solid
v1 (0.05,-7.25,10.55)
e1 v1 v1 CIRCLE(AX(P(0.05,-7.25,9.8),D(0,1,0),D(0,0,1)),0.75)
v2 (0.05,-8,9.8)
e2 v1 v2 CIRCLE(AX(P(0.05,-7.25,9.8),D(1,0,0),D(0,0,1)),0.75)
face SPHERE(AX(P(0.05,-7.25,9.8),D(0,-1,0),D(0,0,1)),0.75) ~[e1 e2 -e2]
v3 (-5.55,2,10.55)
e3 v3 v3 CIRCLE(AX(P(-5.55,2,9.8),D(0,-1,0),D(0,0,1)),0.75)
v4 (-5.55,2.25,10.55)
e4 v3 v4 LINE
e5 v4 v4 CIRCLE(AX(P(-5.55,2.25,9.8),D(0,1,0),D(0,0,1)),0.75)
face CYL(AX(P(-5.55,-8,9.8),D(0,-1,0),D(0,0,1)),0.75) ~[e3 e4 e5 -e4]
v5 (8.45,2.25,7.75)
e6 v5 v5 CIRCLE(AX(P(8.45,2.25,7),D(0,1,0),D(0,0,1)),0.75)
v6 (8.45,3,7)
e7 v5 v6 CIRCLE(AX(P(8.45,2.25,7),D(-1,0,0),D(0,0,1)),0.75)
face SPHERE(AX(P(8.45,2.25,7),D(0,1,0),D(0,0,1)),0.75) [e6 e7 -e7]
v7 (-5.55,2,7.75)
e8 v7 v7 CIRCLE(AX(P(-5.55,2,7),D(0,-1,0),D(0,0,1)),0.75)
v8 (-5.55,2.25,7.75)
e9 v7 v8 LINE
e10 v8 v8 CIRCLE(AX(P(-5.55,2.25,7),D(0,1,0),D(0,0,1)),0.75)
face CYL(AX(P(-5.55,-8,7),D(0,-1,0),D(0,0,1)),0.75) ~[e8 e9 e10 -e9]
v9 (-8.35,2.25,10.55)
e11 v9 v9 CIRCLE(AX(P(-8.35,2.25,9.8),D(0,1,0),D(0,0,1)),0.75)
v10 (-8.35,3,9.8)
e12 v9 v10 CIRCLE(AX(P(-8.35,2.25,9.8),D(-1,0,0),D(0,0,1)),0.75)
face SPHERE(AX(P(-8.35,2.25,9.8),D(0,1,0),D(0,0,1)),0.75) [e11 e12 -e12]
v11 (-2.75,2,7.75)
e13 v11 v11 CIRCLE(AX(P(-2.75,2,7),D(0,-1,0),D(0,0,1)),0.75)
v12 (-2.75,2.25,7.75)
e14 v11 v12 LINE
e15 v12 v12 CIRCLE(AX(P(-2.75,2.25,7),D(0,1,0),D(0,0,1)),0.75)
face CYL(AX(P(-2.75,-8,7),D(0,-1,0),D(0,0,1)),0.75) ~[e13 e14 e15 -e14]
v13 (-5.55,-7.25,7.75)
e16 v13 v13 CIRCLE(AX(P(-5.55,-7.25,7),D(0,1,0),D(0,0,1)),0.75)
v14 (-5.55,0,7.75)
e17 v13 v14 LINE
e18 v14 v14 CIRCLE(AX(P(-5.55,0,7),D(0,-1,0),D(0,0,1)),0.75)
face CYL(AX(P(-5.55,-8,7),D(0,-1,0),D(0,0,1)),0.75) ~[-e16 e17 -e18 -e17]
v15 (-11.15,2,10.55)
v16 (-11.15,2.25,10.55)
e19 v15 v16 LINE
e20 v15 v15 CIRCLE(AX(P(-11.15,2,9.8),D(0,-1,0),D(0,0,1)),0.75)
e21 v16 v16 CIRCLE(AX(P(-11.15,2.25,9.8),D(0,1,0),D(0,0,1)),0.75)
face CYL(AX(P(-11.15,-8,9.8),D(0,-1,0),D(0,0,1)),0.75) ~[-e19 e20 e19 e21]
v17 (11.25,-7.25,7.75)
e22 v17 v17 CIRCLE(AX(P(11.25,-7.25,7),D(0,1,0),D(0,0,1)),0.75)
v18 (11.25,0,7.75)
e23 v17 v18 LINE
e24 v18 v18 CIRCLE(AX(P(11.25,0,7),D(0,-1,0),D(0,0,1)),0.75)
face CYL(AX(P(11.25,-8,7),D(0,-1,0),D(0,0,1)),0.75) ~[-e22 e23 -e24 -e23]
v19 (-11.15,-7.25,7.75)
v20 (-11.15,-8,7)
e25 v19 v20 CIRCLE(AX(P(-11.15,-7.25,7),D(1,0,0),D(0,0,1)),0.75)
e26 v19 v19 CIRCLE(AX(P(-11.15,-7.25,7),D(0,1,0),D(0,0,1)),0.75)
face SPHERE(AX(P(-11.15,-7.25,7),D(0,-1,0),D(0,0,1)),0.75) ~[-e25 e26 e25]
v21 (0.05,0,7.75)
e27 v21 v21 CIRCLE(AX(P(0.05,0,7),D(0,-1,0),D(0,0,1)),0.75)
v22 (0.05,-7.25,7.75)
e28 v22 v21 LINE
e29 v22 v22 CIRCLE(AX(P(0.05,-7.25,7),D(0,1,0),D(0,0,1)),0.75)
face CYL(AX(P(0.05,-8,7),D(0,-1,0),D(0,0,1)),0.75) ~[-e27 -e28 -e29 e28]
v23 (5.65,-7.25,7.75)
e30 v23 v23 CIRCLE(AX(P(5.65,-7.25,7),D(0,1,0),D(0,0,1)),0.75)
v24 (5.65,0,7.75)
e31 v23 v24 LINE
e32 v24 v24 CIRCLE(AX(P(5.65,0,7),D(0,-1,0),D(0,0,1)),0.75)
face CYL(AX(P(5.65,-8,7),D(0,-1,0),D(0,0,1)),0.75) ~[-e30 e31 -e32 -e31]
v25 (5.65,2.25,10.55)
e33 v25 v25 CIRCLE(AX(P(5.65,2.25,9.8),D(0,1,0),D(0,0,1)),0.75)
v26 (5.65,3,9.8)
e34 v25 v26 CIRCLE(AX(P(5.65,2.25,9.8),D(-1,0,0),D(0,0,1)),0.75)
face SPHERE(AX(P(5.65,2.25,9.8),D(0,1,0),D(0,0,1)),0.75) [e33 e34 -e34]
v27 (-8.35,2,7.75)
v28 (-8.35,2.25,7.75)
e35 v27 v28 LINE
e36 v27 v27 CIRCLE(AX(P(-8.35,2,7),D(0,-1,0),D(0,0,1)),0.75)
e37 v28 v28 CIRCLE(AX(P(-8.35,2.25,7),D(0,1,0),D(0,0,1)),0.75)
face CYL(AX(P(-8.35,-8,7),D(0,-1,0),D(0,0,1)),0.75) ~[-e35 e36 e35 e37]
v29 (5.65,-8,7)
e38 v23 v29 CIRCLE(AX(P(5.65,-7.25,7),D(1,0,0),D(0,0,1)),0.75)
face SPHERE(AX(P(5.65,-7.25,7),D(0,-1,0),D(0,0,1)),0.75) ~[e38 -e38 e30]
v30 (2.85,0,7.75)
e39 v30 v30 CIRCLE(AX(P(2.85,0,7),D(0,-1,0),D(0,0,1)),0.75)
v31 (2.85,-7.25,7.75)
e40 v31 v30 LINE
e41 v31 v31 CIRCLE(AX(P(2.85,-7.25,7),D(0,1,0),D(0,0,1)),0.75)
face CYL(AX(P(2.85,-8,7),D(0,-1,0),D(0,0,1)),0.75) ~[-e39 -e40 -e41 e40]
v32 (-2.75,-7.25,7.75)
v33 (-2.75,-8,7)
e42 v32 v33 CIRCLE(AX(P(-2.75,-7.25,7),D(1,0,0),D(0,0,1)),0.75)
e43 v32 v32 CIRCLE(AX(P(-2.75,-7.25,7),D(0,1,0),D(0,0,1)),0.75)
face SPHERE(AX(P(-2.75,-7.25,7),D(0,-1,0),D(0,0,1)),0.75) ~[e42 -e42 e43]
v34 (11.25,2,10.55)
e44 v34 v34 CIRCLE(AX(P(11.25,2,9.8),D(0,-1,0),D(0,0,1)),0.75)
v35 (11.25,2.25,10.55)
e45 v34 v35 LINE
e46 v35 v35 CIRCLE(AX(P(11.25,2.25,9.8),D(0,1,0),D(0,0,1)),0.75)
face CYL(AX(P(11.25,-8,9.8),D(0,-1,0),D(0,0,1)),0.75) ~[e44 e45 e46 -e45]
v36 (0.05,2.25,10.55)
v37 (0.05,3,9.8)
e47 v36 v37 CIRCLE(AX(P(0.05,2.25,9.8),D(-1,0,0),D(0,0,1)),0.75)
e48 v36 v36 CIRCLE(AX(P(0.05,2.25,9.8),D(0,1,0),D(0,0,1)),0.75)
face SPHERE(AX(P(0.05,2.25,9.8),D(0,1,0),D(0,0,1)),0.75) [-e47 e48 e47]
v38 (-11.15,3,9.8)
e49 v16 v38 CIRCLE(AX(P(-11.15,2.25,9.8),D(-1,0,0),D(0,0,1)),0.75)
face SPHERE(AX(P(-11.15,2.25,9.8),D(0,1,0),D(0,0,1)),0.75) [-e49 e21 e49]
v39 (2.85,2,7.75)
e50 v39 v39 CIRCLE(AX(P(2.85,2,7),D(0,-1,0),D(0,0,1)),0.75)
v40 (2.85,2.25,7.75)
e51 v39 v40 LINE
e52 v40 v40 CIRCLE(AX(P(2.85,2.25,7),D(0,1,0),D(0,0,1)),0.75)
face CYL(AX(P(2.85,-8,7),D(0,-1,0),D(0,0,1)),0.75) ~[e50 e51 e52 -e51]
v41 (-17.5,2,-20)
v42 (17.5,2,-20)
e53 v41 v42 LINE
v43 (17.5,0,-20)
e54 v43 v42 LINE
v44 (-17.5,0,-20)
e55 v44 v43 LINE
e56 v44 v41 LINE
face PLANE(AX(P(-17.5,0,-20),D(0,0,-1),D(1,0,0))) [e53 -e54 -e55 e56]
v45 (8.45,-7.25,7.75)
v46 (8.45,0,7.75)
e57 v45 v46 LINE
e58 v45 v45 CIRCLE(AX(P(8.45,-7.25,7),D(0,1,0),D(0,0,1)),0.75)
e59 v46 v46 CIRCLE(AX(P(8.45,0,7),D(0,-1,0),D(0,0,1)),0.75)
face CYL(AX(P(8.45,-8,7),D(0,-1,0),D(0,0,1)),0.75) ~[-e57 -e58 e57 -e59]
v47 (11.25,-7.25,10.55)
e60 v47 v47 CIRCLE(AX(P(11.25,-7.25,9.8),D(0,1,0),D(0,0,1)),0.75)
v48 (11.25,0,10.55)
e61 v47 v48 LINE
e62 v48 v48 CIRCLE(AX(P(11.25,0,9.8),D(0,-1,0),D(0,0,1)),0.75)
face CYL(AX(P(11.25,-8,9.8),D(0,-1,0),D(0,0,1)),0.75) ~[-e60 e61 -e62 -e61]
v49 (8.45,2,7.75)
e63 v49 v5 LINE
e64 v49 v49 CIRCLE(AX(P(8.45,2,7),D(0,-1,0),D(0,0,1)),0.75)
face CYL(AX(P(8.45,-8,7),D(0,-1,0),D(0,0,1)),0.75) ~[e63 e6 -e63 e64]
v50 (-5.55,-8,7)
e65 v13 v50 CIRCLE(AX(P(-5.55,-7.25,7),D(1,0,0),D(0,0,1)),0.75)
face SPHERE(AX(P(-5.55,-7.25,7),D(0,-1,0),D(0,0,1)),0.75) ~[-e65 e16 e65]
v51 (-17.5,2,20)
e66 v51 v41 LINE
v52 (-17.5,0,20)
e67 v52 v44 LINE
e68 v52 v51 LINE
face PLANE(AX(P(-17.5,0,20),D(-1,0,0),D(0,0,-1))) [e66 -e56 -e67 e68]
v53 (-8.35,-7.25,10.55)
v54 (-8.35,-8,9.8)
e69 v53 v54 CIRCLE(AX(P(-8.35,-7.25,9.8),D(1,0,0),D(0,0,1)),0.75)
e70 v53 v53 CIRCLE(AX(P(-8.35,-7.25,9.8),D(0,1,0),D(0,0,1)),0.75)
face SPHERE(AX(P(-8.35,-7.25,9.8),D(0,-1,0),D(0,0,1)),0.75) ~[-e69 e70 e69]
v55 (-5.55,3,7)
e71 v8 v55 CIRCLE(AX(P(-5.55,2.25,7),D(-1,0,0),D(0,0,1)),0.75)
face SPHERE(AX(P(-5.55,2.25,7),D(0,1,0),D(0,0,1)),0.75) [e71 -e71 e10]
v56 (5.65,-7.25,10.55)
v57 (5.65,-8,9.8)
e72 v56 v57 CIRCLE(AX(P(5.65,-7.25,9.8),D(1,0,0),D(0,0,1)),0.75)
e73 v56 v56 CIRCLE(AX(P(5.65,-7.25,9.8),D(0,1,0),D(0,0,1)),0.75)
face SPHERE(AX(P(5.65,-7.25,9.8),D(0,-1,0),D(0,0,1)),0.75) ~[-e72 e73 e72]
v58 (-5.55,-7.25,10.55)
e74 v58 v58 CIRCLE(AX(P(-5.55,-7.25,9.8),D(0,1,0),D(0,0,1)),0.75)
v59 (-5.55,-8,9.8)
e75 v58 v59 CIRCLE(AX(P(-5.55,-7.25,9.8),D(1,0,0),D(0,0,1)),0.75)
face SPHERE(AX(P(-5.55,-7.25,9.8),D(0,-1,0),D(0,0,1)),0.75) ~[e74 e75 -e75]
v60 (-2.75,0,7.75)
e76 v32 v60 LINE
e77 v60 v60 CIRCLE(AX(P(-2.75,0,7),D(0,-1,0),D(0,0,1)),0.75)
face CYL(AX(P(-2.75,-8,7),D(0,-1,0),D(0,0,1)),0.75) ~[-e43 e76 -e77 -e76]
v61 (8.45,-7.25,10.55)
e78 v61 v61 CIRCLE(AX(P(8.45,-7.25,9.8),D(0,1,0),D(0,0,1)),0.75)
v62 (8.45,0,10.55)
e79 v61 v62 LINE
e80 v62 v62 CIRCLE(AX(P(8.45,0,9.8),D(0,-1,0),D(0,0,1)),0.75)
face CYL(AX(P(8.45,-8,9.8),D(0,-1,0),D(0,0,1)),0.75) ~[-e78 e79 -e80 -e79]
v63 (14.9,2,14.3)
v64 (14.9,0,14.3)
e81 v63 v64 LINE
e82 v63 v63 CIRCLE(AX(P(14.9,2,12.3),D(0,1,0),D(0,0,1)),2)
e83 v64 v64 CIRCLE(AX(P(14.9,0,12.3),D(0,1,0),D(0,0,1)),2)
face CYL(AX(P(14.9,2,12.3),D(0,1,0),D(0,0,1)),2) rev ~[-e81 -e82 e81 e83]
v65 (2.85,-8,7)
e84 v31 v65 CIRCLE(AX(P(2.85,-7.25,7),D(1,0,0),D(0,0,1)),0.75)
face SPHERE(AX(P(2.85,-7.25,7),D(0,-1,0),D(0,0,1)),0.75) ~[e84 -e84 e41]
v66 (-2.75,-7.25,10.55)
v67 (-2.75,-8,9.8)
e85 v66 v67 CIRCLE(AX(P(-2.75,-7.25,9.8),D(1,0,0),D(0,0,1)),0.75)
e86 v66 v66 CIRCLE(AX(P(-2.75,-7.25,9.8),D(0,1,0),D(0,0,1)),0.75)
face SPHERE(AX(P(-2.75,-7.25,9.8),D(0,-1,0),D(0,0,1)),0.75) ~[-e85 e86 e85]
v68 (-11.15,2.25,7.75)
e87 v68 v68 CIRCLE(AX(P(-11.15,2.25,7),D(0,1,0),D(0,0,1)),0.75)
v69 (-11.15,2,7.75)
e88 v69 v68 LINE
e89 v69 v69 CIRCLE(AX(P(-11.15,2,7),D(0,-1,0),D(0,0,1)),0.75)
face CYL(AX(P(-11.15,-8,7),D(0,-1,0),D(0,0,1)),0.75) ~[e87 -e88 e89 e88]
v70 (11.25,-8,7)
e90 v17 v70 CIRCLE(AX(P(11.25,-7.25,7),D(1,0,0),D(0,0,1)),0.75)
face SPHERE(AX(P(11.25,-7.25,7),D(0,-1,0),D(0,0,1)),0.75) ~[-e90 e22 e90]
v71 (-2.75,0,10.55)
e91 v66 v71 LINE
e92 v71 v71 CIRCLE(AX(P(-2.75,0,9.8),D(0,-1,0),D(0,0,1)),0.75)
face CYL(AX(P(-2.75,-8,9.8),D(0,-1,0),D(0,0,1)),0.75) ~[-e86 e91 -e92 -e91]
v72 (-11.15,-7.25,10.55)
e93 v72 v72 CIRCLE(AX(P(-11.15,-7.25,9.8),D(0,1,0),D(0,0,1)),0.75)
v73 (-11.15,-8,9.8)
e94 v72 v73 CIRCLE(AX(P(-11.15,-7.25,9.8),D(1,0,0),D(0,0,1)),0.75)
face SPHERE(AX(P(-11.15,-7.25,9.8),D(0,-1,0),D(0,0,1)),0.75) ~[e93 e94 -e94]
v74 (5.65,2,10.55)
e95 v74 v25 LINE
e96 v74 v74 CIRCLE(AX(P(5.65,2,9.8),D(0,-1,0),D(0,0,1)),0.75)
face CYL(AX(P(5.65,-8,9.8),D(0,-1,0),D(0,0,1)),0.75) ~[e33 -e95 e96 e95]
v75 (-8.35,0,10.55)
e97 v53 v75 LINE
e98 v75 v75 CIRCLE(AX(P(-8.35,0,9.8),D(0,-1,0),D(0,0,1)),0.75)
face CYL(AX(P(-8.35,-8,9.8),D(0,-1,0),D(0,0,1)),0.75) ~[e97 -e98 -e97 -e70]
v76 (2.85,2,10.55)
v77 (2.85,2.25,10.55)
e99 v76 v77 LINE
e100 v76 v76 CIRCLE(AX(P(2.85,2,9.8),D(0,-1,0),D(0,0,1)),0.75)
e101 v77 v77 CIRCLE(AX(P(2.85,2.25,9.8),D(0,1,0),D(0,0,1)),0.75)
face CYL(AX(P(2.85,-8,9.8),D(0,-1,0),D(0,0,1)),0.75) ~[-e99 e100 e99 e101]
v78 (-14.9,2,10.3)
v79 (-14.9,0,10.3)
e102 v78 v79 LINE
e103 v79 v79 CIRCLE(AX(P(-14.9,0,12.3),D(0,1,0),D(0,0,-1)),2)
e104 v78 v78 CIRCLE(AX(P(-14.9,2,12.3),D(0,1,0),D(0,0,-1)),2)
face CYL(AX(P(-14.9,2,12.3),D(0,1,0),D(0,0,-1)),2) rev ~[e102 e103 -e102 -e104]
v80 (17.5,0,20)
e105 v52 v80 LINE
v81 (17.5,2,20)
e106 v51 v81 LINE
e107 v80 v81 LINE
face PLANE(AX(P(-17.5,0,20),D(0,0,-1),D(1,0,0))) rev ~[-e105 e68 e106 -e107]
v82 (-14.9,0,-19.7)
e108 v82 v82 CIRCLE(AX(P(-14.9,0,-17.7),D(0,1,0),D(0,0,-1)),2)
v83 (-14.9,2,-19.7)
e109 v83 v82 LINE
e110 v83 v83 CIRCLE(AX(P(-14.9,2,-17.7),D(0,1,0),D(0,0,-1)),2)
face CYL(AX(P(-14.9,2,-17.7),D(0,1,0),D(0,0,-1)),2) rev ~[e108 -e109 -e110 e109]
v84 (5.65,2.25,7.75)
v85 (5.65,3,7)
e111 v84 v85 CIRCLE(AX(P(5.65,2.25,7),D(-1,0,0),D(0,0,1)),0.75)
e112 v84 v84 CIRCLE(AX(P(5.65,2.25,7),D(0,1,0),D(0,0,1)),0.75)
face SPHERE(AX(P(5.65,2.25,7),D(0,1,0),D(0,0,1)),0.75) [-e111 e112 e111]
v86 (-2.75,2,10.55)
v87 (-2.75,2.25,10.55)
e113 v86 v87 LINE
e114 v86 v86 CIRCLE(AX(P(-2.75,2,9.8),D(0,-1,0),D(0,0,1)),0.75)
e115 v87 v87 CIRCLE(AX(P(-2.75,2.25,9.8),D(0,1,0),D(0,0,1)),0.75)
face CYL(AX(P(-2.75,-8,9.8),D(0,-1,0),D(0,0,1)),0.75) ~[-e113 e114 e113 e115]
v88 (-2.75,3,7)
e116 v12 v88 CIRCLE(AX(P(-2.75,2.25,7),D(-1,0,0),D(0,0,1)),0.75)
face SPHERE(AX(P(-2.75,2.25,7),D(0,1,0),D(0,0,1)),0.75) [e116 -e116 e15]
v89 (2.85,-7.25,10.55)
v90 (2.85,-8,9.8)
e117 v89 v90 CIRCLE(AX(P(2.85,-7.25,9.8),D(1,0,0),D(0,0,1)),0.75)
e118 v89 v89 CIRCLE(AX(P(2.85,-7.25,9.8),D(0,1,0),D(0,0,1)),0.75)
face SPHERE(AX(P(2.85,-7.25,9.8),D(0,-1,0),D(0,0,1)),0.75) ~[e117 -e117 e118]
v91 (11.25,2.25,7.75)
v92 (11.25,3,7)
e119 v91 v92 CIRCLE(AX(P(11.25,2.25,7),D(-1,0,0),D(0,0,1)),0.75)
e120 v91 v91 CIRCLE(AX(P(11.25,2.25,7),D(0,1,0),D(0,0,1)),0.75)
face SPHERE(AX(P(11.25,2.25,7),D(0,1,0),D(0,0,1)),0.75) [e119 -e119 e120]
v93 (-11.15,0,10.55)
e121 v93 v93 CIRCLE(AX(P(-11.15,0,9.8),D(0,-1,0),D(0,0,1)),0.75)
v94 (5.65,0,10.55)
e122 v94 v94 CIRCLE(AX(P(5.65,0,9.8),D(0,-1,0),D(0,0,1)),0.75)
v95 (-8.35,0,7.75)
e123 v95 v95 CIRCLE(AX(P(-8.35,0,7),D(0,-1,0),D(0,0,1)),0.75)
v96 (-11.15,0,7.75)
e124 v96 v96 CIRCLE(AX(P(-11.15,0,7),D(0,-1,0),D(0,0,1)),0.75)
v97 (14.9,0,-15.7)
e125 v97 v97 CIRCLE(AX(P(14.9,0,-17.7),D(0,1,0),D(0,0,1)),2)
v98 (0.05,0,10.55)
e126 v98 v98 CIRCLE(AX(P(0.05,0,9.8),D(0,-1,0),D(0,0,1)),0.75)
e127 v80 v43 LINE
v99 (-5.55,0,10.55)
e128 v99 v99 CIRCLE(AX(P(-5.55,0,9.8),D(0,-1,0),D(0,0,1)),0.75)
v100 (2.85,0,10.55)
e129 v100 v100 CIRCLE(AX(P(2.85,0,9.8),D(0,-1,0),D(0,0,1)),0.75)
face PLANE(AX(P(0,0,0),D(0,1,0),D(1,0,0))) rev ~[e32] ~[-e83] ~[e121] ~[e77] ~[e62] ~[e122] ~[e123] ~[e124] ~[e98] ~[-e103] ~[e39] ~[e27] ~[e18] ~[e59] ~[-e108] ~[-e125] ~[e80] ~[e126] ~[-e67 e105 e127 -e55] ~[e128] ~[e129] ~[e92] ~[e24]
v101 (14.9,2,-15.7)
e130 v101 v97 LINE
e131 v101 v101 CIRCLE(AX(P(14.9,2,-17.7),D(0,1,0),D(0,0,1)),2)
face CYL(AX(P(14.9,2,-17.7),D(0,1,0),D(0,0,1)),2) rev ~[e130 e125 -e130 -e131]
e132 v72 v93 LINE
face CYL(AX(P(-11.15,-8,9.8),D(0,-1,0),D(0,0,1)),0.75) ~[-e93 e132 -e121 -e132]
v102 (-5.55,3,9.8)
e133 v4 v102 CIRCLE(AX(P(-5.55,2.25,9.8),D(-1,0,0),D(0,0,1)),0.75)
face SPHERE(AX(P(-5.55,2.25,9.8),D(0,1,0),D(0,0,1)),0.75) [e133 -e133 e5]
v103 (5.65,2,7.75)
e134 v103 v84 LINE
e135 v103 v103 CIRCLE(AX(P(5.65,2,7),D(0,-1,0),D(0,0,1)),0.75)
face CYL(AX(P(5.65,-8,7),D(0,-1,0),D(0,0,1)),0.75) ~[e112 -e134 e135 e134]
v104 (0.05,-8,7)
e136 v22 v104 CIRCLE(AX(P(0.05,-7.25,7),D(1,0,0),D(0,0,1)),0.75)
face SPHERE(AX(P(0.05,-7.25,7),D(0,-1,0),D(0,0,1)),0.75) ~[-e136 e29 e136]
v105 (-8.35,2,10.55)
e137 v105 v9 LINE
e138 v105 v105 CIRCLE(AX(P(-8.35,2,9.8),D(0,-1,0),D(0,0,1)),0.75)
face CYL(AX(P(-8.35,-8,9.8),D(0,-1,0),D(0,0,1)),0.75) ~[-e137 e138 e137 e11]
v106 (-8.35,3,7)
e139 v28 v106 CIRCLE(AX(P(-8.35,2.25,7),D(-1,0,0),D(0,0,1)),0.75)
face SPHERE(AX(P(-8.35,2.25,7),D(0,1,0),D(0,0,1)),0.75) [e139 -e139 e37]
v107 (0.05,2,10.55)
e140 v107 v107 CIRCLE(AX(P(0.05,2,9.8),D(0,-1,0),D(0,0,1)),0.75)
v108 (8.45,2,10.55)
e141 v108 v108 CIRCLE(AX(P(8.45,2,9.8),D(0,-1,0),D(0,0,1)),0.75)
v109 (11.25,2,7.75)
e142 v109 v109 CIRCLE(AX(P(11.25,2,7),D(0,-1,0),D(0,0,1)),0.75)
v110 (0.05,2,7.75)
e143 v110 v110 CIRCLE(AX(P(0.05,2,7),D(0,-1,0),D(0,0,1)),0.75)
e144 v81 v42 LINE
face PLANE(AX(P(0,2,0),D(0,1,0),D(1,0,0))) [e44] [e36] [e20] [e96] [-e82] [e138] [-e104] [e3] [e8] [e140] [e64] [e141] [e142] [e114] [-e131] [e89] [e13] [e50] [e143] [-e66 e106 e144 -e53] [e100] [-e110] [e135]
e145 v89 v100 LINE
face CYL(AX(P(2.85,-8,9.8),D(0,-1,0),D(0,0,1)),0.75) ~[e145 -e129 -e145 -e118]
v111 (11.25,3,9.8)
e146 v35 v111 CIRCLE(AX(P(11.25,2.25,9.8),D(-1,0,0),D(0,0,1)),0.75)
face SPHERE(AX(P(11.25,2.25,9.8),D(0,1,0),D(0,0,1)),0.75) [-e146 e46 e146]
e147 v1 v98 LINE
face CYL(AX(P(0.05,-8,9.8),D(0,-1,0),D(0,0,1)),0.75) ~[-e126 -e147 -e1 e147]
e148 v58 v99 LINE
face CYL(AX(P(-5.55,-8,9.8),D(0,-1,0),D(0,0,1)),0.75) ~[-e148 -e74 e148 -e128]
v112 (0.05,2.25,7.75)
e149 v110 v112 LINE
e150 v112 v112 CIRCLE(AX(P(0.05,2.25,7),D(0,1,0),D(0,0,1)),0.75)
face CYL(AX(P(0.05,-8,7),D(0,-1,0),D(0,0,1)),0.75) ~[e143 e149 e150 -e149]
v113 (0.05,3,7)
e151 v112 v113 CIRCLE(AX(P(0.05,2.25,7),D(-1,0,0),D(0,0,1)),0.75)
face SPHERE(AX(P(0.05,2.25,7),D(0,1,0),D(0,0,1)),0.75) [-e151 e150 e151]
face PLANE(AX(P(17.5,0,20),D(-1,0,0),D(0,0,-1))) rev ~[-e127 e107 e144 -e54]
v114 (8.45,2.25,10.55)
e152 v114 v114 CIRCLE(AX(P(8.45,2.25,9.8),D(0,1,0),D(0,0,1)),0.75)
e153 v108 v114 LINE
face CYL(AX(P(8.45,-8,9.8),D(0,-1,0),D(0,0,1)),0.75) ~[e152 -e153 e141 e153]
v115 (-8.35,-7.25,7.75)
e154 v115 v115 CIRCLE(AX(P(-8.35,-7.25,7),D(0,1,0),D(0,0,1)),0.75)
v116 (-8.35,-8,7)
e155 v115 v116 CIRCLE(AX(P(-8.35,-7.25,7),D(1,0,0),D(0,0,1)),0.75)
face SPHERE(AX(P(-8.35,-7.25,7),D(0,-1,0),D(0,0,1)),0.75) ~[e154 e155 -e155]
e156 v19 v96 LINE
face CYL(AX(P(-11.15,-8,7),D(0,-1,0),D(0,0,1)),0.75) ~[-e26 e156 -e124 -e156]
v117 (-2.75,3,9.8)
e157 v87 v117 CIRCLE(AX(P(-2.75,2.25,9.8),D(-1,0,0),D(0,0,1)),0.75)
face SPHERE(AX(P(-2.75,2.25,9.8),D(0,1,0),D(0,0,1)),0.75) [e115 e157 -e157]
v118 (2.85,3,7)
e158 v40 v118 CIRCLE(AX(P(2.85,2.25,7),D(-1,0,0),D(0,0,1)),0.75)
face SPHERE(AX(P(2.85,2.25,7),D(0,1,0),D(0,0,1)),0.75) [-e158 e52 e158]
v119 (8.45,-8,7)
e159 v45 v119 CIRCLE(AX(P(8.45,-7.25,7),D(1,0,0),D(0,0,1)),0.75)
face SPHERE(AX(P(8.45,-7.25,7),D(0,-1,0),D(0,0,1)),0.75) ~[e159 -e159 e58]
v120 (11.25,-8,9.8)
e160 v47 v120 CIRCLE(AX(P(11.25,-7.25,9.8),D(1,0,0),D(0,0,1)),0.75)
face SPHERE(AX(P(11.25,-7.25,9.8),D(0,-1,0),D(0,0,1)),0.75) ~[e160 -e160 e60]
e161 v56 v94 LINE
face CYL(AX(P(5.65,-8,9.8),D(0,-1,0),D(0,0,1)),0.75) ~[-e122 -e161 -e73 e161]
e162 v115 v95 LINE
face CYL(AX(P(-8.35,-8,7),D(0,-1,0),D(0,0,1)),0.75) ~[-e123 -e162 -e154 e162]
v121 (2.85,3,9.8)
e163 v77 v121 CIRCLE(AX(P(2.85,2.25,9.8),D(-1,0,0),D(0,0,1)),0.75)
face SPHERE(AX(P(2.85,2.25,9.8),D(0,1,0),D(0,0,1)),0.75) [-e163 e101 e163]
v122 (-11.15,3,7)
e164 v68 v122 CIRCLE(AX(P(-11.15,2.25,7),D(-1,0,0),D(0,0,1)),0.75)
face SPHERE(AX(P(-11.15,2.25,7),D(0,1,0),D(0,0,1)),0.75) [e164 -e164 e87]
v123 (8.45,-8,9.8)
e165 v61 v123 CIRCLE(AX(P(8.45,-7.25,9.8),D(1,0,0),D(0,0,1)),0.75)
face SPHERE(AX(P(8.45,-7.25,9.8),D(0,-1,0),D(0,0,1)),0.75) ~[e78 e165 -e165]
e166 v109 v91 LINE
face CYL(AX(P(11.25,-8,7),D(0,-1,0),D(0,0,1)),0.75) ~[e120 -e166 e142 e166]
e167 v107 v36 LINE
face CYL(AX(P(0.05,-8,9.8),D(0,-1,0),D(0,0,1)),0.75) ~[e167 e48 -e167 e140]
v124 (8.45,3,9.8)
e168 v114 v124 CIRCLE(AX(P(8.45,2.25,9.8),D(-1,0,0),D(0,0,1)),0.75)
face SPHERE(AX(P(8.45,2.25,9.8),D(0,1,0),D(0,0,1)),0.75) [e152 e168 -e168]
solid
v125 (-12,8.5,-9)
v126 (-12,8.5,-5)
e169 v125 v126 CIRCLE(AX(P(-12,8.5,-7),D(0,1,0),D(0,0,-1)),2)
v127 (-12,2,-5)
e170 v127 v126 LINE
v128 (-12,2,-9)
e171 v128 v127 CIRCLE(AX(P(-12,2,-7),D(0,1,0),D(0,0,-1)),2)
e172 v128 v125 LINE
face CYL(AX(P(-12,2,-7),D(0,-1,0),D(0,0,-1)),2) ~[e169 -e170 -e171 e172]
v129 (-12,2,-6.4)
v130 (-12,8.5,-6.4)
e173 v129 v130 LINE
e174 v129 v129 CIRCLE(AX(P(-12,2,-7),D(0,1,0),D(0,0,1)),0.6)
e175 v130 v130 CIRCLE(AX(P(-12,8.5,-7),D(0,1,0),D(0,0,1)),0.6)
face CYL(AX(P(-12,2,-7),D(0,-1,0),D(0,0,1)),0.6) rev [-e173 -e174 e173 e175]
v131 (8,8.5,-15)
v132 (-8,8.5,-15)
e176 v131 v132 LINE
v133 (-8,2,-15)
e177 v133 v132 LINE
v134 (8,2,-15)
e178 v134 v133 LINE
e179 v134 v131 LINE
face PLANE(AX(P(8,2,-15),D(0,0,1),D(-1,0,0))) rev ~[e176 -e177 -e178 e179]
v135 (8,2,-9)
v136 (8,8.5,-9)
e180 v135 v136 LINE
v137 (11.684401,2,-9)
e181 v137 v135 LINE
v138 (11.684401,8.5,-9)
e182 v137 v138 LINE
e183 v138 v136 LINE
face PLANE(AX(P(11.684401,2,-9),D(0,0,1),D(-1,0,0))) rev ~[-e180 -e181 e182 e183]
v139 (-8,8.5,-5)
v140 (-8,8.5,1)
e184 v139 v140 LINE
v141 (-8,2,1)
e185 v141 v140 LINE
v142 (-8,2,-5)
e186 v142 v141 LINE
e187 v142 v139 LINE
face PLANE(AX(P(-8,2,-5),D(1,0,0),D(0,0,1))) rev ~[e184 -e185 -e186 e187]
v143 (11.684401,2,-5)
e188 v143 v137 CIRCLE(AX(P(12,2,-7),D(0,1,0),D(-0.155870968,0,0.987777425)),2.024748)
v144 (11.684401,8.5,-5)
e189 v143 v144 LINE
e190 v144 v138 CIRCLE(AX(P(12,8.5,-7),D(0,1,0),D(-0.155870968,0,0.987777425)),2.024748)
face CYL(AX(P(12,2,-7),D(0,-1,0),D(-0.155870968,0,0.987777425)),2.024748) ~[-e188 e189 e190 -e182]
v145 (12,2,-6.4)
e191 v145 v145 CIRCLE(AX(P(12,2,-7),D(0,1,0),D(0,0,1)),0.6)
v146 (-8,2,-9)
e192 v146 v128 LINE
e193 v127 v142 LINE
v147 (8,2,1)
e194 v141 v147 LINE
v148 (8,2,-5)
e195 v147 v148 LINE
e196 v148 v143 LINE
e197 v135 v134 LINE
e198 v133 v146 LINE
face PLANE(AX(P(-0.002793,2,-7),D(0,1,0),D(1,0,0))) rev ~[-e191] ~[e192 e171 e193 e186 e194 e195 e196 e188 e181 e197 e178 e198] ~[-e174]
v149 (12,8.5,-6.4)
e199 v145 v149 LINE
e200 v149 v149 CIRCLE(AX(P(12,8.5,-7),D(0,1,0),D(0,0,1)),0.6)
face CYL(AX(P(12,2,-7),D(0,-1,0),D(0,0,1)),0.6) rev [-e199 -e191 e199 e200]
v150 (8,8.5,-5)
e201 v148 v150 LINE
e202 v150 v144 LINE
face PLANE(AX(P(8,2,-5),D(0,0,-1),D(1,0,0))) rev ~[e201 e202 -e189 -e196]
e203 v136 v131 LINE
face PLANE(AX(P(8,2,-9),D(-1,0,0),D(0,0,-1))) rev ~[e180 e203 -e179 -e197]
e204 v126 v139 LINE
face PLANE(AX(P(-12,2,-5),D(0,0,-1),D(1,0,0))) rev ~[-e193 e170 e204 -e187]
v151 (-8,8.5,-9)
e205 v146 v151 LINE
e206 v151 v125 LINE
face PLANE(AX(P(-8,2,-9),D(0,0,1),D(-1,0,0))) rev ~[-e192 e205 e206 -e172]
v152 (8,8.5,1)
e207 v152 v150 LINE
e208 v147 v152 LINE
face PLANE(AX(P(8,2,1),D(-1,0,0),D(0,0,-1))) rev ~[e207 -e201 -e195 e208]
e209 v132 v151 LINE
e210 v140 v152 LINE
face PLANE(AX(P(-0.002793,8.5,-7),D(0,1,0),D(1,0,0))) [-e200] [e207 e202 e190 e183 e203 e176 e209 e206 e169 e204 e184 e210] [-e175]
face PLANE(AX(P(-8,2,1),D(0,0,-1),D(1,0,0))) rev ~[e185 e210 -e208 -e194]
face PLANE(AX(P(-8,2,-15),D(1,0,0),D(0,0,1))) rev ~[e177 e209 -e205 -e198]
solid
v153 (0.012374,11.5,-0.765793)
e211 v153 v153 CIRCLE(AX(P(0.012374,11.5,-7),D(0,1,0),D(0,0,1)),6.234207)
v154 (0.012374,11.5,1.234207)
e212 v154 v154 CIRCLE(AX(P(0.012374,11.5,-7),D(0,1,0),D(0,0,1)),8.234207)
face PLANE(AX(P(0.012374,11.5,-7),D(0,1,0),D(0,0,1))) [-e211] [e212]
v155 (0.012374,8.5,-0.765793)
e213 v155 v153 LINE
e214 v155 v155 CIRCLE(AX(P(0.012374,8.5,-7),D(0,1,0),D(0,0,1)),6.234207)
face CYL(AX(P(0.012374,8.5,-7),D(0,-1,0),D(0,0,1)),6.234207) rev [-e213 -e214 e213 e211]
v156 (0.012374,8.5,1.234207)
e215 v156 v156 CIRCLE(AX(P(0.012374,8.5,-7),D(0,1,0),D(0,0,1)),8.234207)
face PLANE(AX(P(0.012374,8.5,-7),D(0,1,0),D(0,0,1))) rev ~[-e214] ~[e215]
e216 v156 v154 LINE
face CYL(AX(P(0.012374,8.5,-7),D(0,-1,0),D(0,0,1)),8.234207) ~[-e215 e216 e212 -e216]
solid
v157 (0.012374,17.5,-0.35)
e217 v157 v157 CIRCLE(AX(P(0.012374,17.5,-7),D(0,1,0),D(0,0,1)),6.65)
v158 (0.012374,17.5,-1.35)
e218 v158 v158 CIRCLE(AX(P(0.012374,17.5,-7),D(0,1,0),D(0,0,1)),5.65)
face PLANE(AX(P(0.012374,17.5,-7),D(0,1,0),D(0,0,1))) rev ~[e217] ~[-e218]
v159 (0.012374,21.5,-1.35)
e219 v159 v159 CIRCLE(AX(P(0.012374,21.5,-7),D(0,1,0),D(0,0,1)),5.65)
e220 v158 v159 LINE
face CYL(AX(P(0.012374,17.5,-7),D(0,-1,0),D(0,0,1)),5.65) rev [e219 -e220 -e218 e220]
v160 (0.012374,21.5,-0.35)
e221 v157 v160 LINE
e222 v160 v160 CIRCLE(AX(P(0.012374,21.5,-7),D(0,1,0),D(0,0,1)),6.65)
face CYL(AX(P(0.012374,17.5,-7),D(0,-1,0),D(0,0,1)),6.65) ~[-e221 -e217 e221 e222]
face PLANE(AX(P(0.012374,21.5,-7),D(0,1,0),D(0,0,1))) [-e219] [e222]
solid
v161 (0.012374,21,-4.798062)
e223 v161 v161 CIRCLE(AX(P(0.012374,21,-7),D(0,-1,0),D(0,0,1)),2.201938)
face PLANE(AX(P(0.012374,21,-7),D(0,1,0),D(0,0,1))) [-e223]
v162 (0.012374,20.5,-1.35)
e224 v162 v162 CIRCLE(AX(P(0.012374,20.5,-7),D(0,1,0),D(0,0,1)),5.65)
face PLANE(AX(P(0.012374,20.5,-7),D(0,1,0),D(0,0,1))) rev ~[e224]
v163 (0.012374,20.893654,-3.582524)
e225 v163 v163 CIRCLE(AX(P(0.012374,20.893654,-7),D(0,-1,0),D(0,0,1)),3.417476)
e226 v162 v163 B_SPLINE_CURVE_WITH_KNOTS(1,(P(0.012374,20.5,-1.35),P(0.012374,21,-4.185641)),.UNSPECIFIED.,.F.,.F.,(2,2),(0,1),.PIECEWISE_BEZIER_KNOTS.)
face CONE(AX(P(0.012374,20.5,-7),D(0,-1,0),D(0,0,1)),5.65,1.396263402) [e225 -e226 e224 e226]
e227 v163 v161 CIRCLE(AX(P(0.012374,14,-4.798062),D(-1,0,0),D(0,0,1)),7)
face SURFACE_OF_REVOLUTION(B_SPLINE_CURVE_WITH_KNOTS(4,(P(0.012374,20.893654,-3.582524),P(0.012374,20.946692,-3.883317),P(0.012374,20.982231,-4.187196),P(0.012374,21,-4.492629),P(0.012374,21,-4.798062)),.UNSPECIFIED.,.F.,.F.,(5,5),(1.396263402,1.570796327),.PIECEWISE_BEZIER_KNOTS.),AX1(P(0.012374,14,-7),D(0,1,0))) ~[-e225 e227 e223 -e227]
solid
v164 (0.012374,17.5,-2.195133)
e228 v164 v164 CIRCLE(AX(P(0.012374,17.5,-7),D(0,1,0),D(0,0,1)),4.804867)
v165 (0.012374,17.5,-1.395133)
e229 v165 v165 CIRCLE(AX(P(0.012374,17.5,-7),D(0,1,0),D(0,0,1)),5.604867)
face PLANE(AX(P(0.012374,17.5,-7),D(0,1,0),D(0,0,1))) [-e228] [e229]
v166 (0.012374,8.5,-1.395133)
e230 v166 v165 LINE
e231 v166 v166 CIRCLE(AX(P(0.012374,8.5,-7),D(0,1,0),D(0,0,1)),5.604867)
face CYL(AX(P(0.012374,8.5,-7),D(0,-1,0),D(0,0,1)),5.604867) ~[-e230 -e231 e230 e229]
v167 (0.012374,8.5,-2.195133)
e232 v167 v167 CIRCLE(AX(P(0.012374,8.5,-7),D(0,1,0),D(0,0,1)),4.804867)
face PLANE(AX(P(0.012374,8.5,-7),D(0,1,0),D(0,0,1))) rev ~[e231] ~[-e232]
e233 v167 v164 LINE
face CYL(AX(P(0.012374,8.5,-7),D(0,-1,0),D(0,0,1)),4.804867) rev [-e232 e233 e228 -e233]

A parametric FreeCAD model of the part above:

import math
import FreeCAD as App
import Part
import Sketcher


def edges_at(feature, points):
    """Names of the edges that pass closest to the given points."""
    edges = feature.Shape.Edges
    near = lambda p: min(range(len(edges)), key=lambda i: edges[i].distToShape(Part.Vertex(*p))[0])
    return sorted({f"Edge{near(p) + 1}" for p in points})


def add_polygon(sketch, points):
    """Adds a closed chain of lines whose ends are joined by coincident constraints."""
    first, n = sketch.GeometryCount, len(points)
    for a, b in zip(points, points[1:] + points[:1]):
        sketch.addGeometry(Part.LineSegment(App.Vector(*a, 0), App.Vector(*b, 0)), False)
    for i in range(n):
        sketch.addConstraint(Sketcher.Constraint("Coincident", first + i, 2, first + (i + 1) % n, 1))

doc = App.newDocument("Part")
params = doc.addObject("Spreadsheet::Sheet", "Params")
for row, (alias, value) in enumerate([
    ("sketch1_width", "35 mm"),
    ("sketch1_height", "40 mm"),
    ("pad1_length", "2 mm"),
    ("sketch2_diameter", "4 mm"),
    ("pocket1_length", "2 mm"),
    ("sketch3_diameter", "1.5 mm"),
    ("pad2_length", "1 mm"),
    ("pad2_length2", "10 mm"),
    ("fillet_radius", "0.75 mm"),
    ("sketch4_radius", "2 mm"),
    ("sketch4_diameter", "1.2 mm"),
    ("sketch4_width", "4 mm"),
    ("sketch4_width2", "16 mm"),
    ("sketch4_height", "6 mm"),
    ("pad3_length", "6.5 mm"),
    ("pad4_length", "3 mm"),
    ("pad5_length", "6 mm"),
    ("pad5_length2", "3 mm"),
    ("sketch7_diameter", "13.3 mm"),
    ("sketch7_diameter2", "11.3 mm"),
    ("pad6_length", "4 mm"),
    ("sketch8_diameter", "11.3 mm"),
    ("pad7_length", "0.5 mm"),
    ("pad7_taper", "-80 deg"),
    ("fillet2_radius", "7 mm"),
], start=1):
    params.set(f"A{row}", alias)
    params.set(f"B{row}", "=" + value)
    params.setAlias(f"B{row}", alias)

body = doc.addObject("PartDesign::Body", "Body")

sketch1 = body.newObject("Sketcher::SketchObject", "Sketch")
sketch1.AttachmentSupport = (doc.getObject("XZ_Plane"), [""])
sketch1.MapMode = "FlatFace"
add_polygon(sketch1, [(-17.5, -20), (-17.5, 20), (17.5, 20), (17.5, -20)])
sketch1.addConstraint(Sketcher.Constraint("Vertical", 0))
sketch1.addConstraint(Sketcher.Constraint("Horizontal", 1))
sketch1.addConstraint(Sketcher.Constraint("Vertical", 2))
sketch1.addConstraint(Sketcher.Constraint("Horizontal", 3))
sketch1.addConstraint(Sketcher.Constraint("Symmetric", 0, 2, 2, 2, -1, 1))
sketch1.addConstraint(Sketcher.Constraint("DistanceX", 1, 1, 1, 2, 35.0))
sketch1.addConstraint(Sketcher.Constraint("DistanceY", 0, 1, 0, 2, 40.0))
sketch1.setExpression("Constraints[9]", "Params.sketch1_width")
sketch1.setExpression("Constraints[10]", "Params.sketch1_height")
pad1 = body.newObject("PartDesign::Pad", "Pad")
pad1.Profile = sketch1
pad1.setExpression("Length", "Params.pad1_length")
pad1.Reversed = True

sketch2 = body.newObject("Sketcher::SketchObject", "Sketch001")
sketch2.AttachmentSupport = (doc.getObject("XZ_Plane"), [""])
sketch2.MapMode = "FlatFace"
sketch2.AttachmentOffset = App.Placement(App.Vector(0, 0, -2), App.Rotation())
sketch2.addGeometry(Part.Circle(App.Vector(14.9, -17.7, 0), App.Vector(0, 0, 1), 2), False)
sketch2.addGeometry(Part.Circle(App.Vector(14.9, 12.3, 0), App.Vector(0, 0, 1), 2), False)
sketch2.addGeometry(Part.Circle(App.Vector(-14.9, 12.3, 0), App.Vector(0, 0, 1), 2), False)
sketch2.addGeometry(Part.Circle(App.Vector(-14.9, -17.7, 0), App.Vector(0, 0, 1), 2), False)
sketch2.addConstraint(Sketcher.Constraint("Equal", 0, 1))
sketch2.addConstraint(Sketcher.Constraint("Equal", 1, 2))
sketch2.addConstraint(Sketcher.Constraint("Equal", 2, 3))
sketch2.addConstraint(Sketcher.Constraint("Symmetric", 1, 3, 2, 3, -2))
sketch2.addConstraint(Sketcher.Constraint("Symmetric", 0, 3, 3, 3, -2))
sketch2.addConstraint(Sketcher.Constraint("Vertical", 0, 3, 1, 3))
sketch2.addConstraint(Sketcher.Constraint("Diameter", 0, 4.0))
sketch2.addConstraint(Sketcher.Constraint("DistanceY", 0, 3, 1, 3, 30.0))
sketch2.addConstraint(Sketcher.Constraint("DistanceX", -1, 1, 0, 3, 14.9))
sketch2.addConstraint(Sketcher.Constraint("DistanceY", 0, 3, -1, 1, 17.7))
sketch2.setExpression("Constraints[6]", "Params.sketch2_diameter")
pocket1 = body.newObject("PartDesign::Pocket", "Pocket")
pocket1.Profile = sketch2
pocket1.setExpression("Length", "Params.pocket1_length")
pocket1.Reversed = True

sketch3 = body.newObject("Sketcher::SketchObject", "Sketch002")
sketch3.AttachmentSupport = (doc.getObject("XZ_Plane"), [""])
sketch3.MapMode = "FlatFace"
sketch3.AttachmentOffset = App.Placement(App.Vector(0, 0, -2), App.Rotation())
sketch3.addGeometry(Part.Circle(App.Vector(-11.15, 7, 0), App.Vector(0, 0, 1), 0.75), False)
sketch3.addGeometry(Part.Circle(App.Vector(-8.35, 7, 0), App.Vector(0, 0, 1), 0.75), False)
sketch3.addGeometry(Part.Circle(App.Vector(-5.55, 7, 0), App.Vector(0, 0, 1), 0.75), False)
sketch3.addGeometry(Part.Circle(App.Vector(-2.75, 7, 0), App.Vector(0, 0, 1), 0.75), False)
sketch3.addGeometry(Part.Circle(App.Vector(0.05, 7, 0), App.Vector(0, 0, 1), 0.75), False)
sketch3.addGeometry(Part.Circle(App.Vector(2.85, 7, 0), App.Vector(0, 0, 1), 0.75), False)
sketch3.addGeometry(Part.Circle(App.Vector(5.65, 7, 0), App.Vector(0, 0, 1), 0.75), False)
sketch3.addGeometry(Part.Circle(App.Vector(8.45, 7, 0), App.Vector(0, 0, 1), 0.75), False)
sketch3.addGeometry(Part.Circle(App.Vector(11.25, 7, 0), App.Vector(0, 0, 1), 0.75), False)
sketch3.addGeometry(Part.Circle(App.Vector(-8.35, 9.8, 0), App.Vector(0, 0, 1), 0.75), False)
sketch3.addGeometry(Part.Circle(App.Vector(-5.55, 9.8, 0), App.Vector(0, 0, 1), 0.75), False)
sketch3.addGeometry(Part.Circle(App.Vector(-2.75, 9.8, 0), App.Vector(0, 0, 1), 0.75), False)
sketch3.addGeometry(Part.Circle(App.Vector(0.05, 9.8, 0), App.Vector(0, 0, 1), 0.75), False)
sketch3.addGeometry(Part.Circle(App.Vector(2.85, 9.8, 0), App.Vector(0, 0, 1), 0.75), False)
sketch3.addGeometry(Part.Circle(App.Vector(5.65, 9.8, 0), App.Vector(0, 0, 1), 0.75), False)
sketch3.addGeometry(Part.Circle(App.Vector(8.45, 9.8, 0), App.Vector(0, 0, 1), 0.75), False)
sketch3.addGeometry(Part.Circle(App.Vector(11.25, 9.8, 0), App.Vector(0, 0, 1), 0.75), False)
sketch3.addGeometry(Part.Circle(App.Vector(-11.15, 9.8, 0), App.Vector(0, 0, 1), 0.75), False)
sketch3.addConstraint(Sketcher.Constraint("Equal", 0, 1))
sketch3.addConstraint(Sketcher.Constraint("Equal", 1, 2))
sketch3.addConstraint(Sketcher.Constraint("Equal", 2, 3))
sketch3.addConstraint(Sketcher.Constraint("Equal", 3, 4))
sketch3.addConstraint(Sketcher.Constraint("Equal", 4, 5))
sketch3.addConstraint(Sketcher.Constraint("Equal", 5, 6))
sketch3.addConstraint(Sketcher.Constraint("Equal", 6, 7))
sketch3.addConstraint(Sketcher.Constraint("Equal", 7, 8))
sketch3.addConstraint(Sketcher.Constraint("Equal", 8, 9))
sketch3.addConstraint(Sketcher.Constraint("Equal", 9, 10))
sketch3.addConstraint(Sketcher.Constraint("Equal", 10, 11))
sketch3.addConstraint(Sketcher.Constraint("Equal", 11, 12))
sketch3.addConstraint(Sketcher.Constraint("Equal", 12, 13))
sketch3.addConstraint(Sketcher.Constraint("Equal", 13, 14))
sketch3.addConstraint(Sketcher.Constraint("Equal", 14, 15))
sketch3.addConstraint(Sketcher.Constraint("Equal", 15, 16))
sketch3.addConstraint(Sketcher.Constraint("Equal", 16, 17))
sketch3.addConstraint(Sketcher.Constraint("Horizontal", 0, 3, 1, 3))
sketch3.addConstraint(Sketcher.Constraint("Horizontal", 1, 3, 2, 3))
sketch3.addConstraint(Sketcher.Constraint("Horizontal", 2, 3, 3, 3))
sketch3.addConstraint(Sketcher.Constraint("Horizontal", 3, 3, 4, 3))
sketch3.addConstraint(Sketcher.Constraint("Horizontal", 4, 3, 5, 3))
sketch3.addConstraint(Sketcher.Constraint("Horizontal", 5, 3, 6, 3))
sketch3.addConstraint(Sketcher.Constraint("Horizontal", 6, 3, 7, 3))
sketch3.addConstraint(Sketcher.Constraint("Horizontal", 7, 3, 8, 3))
sketch3.addConstraint(Sketcher.Constraint("Horizontal", 9, 3, 10, 3))
sketch3.addConstraint(Sketcher.Constraint("Horizontal", 10, 3, 11, 3))
sketch3.addConstraint(Sketcher.Constraint("Horizontal", 11, 3, 12, 3))
sketch3.addConstraint(Sketcher.Constraint("Horizontal", 12, 3, 13, 3))
sketch3.addConstraint(Sketcher.Constraint("Horizontal", 13, 3, 14, 3))
sketch3.addConstraint(Sketcher.Constraint("Horizontal", 14, 3, 15, 3))
sketch3.addConstraint(Sketcher.Constraint("Horizontal", 15, 3, 16, 3))
sketch3.addConstraint(Sketcher.Constraint("Horizontal", 16, 3, 17, 3))
sketch3.addConstraint(Sketcher.Constraint("Vertical", 1, 3, 9, 3))
sketch3.addConstraint(Sketcher.Constraint("Vertical", 2, 3, 10, 3))
sketch3.addConstraint(Sketcher.Constraint("Vertical", 3, 3, 11, 3))
sketch3.addConstraint(Sketcher.Constraint("Vertical", 4, 3, 12, 3))
sketch3.addConstraint(Sketcher.Constraint("Vertical", 5, 3, 13, 3))
sketch3.addConstraint(Sketcher.Constraint("Vertical", 6, 3, 14, 3))
sketch3.addConstraint(Sketcher.Constraint("Vertical", 7, 3, 15, 3))
sketch3.addConstraint(Sketcher.Constraint("Vertical", 8, 3, 16, 3))
sketch3.addConstraint(Sketcher.Constraint("Vertical", 0, 3, 17, 3))
sketch3.addConstraint(Sketcher.Constraint("Diameter", 0, 1.5))
sketch3.addConstraint(Sketcher.Constraint("DistanceY", -1, 1, 0, 3, 7.0))
sketch3.addConstraint(Sketcher.Constraint("DistanceX", 0, 3, 5, 3, 14.0))
sketch3.addConstraint(Sketcher.Constraint("DistanceX", 1, 3, 6, 3, 14.0))
sketch3.addConstraint(Sketcher.Constraint("DistanceX", 2, 3, 7, 3, 14.0))
sketch3.addConstraint(Sketcher.Constraint("DistanceX", 3, 3, 8, 3, 14.0))
sketch3.addConstraint(Sketcher.Constraint("DistanceY", -1, 1, 9, 3, 9.8))
sketch3.addConstraint(Sketcher.Constraint("DistanceX", 0, 3, 1, 3, 2.8))
sketch3.addConstraint(Sketcher.Constraint("DistanceX", 1, 3, 2, 3, 2.8))
sketch3.addConstraint(Sketcher.Constraint("DistanceX", 2, 3, 3, 3, 2.8))
sketch3.addConstraint(Sketcher.Constraint("DistanceX", 3, 3, 4, 3, 2.8))
sketch3.addConstraint(Sketcher.Constraint("DistanceX", 0, 3, -1, 1, 11.15))
sketch3.setExpression("Constraints[42]", "Params.sketch3_diameter")
pad2 = body.newObject("PartDesign::Pad", "Pad001")
pad2.Profile = sketch3
pad2.Type = "TwoLengths"
pad2.setExpression("Length", "Params.pad2_length")
pad2.setExpression("Length2", "Params.pad2_length2")
pad2.Reversed = True
doc.recompute()

fillet = body.newObject("PartDesign::Fillet", "Fillet")
fillet.Base = (pad2, edges_at(pad2, [
    (2.85, -8, 9.05),
    (2.85, 3, 9.05),
    (5.65, -8, 9.05),
    (5.65, 3, 9.05),
    (8.45, -8, 9.05),
    (8.45, 3, 9.05),
    (11.25, -8, 9.05),
    (11.25, 3, 9.05),
    (-11.15, -8, 9.05),
    (-11.15, 3, 9.05),
    (-11.15, -8, 6.25),
    (-11.15, 3, 6.25),
    (-8.35, -8, 6.25),
    (-8.35, 3, 6.25),
    (-5.55, -8, 6.25),
    (-5.55, 3, 6.25),
    (-2.75, -8, 6.25),
    (-2.75, 3, 6.25),
    (0.05, -8, 6.25),
    (0.05, 3, 6.25),
    (2.85, -8, 6.25),
    (2.85, 3, 6.25),
    (5.65, -8, 6.25),
    (5.65, 3, 6.25),
    (8.45, -8, 6.25),
    (8.45, 3, 6.25),
    (11.25, -8, 6.25),
    (11.25, 3, 6.25),
    (-8.35, -8, 9.05),
    (-8.35, 3, 9.05),
    (-5.55, -8, 9.05),
    (-5.55, 3, 9.05),
    (-2.75, -8, 9.05),
    (-2.75, 3, 9.05),
    (0.05, -8, 9.05),
    (0.05, 3, 9.05),
]))
fillet.setExpression("Radius", "Params.fillet_radius")
body2 = doc.addObject("PartDesign::Body", "Body001")

sketch4 = body2.newObject("Sketcher::SketchObject", "Sketch003")
sketch4.AttachmentSupport = (doc.getObject("XZ_Plane001"), [""])
sketch4.MapMode = "FlatFace"
sketch4.AttachmentOffset = App.Placement(App.Vector(0, 0, -2), App.Rotation())
sketch4.addGeometry(Part.LineSegment(App.Vector(-12, -5, 0), App.Vector(-8, -5, 0)), False)
sketch4.addGeometry(Part.LineSegment(App.Vector(-8, -5, 0), App.Vector(-8, 1, 0)), False)
sketch4.addGeometry(Part.LineSegment(App.Vector(-8, 1, 0), App.Vector(8, 1, 0)), False)
sketch4.addGeometry(Part.LineSegment(App.Vector(8, 1, 0), App.Vector(8, -5, 0)), False)
sketch4.addGeometry(Part.LineSegment(App.Vector(8, -5, 0), App.Vector(11.684401, -5, 0)), False)
sketch4.addGeometry(Part.ArcOfCircle(Part.Circle(App.Vector(12, -7, 0), App.Vector(0, 0, 1), 2.024748), math.radians(-98.967313), math.radians(98.967313)), False)
sketch4.addGeometry(Part.LineSegment(App.Vector(11.684401, -9, 0), App.Vector(8, -9, 0)), False)
sketch4.addGeometry(Part.LineSegment(App.Vector(8, -9, 0), App.Vector(8, -15, 0)), False)
sketch4.addGeometry(Part.LineSegment(App.Vector(8, -15, 0), App.Vector(-8, -15, 0)), False)
sketch4.addGeometry(Part.LineSegment(App.Vector(-8, -15, 0), App.Vector(-8, -9, 0)), False)
sketch4.addGeometry(Part.LineSegment(App.Vector(-8, -9, 0), App.Vector(-12, -9, 0)), False)
sketch4.addGeometry(Part.ArcOfCircle(Part.Circle(App.Vector(-12, -7, 0), App.Vector(0, 0, 1), 2), math.radians(90), math.radians(270)), False)
sketch4.addGeometry(Part.Circle(App.Vector(-12, -7, 0), App.Vector(0, 0, 1), 0.6), False)
sketch4.addGeometry(Part.Circle(App.Vector(12, -7, 0), App.Vector(0, 0, 1), 0.6), False)
sketch4.addConstraint(Sketcher.Constraint("Coincident", 0, 2, 1, 1))
sketch4.addConstraint(Sketcher.Constraint("Coincident", 1, 2, 2, 1))
sketch4.addConstraint(Sketcher.Constraint("Coincident", 2, 2, 3, 1))
sketch4.addConstraint(Sketcher.Constraint("Coincident", 3, 2, 4, 1))
sketch4.addConstraint(Sketcher.Constraint("Coincident", 4, 2, 5, 2))
sketch4.addConstraint(Sketcher.Constraint("Coincident", 5, 1, 6, 1))
sketch4.addConstraint(Sketcher.Constraint("Coincident", 6, 2, 7, 1))
sketch4.addConstraint(Sketcher.Constraint("Coincident", 7, 2, 8, 1))
sketch4.addConstraint(Sketcher.Constraint("Coincident", 8, 2, 9, 1))
sketch4.addConstraint(Sketcher.Constraint("Coincident", 9, 2, 10, 1))
sketch4.addConstraint(Sketcher.Constraint("Tangent", 10, 2, 11, 2))
sketch4.addConstraint(Sketcher.Constraint("Tangent", 11, 1, 0, 1))
sketch4.addConstraint(Sketcher.Constraint("Horizontal", 0))
sketch4.addConstraint(Sketcher.Constraint("Vertical", 1))
sketch4.addConstraint(Sketcher.Constraint("Horizontal", 2))
sketch4.addConstraint(Sketcher.Constraint("Vertical", 3))
sketch4.addConstraint(Sketcher.Constraint("Horizontal", 4))
sketch4.addConstraint(Sketcher.Constraint("Horizontal", 6))
sketch4.addConstraint(Sketcher.Constraint("Vertical", 7))
sketch4.addConstraint(Sketcher.Constraint("Horizontal", 8))
sketch4.addConstraint(Sketcher.Constraint("Vertical", 9))
sketch4.addConstraint(Sketcher.Constraint("Horizontal", 10))
sketch4.addConstraint(Sketcher.Constraint("Coincident", 12, 3, 11, 3))
sketch4.addConstraint(Sketcher.Constraint("Coincident", 13, 3, 5, 3))
sketch4.addConstraint(Sketcher.Constraint("Equal", 12, 13))
sketch4.addConstraint(Sketcher.Constraint("Symmetric", 5, 3, 11, 3, -2))
sketch4.addConstraint(Sketcher.Constraint("Symmetric", 0, 2, 3, 2, -2))
sketch4.addConstraint(Sketcher.Constraint("Symmetric", 6, 2, 9, 2, -2))
sketch4.addConstraint(Sketcher.Constraint("Vertical", 3, 2, 6, 2))
sketch4.addConstraint(Sketcher.Constraint("Equal", 3, 7))
sketch4.addConstraint(Sketcher.Constraint("Radius", 11, 2.0))
sketch4.addConstraint(Sketcher.Constraint("Diameter", 12, 1.2))
sketch4.addConstraint(Sketcher.Constraint("DistanceX", 0, 1, 0, 2, 4.0))
sketch4.addConstraint(Sketcher.Constraint("DistanceX", 2, 1, 2, 2, 16.0))
sketch4.addConstraint(Sketcher.Constraint("DistanceY", 1, 1, 1, 2, 6.0))
sketch4.addConstraint(Sketcher.Constraint("DistanceY", 5, 3, -1, 1, 7.0))
sketch4.addConstraint(Sketcher.Constraint("DistanceX", 4, 1, 4, 2, 3.684401))
sketch4.setExpression("Constraints[30]", "Params.sketch4_radius")
sketch4.setExpression("Constraints[31]", "Params.sketch4_diameter")
sketch4.setExpression("Constraints[32]", "Params.sketch4_width")
sketch4.setExpression("Constraints[33]", "Params.sketch4_width2")
sketch4.setExpression("Constraints[34]", "Params.sketch4_height")
pad3 = body2.newObject("PartDesign::Pad", "Pad002")
pad3.Profile = sketch4
pad3.setExpression("Length", "Params.pad3_length")
pad3.Reversed = True
body3 = doc.addObject("PartDesign::Body", "Body002")

sketch5 = body3.newObject("Sketcher::SketchObject", "Sketch004")
sketch5.AttachmentSupport = (doc.getObject("XZ_Plane002"), [""])
sketch5.MapMode = "FlatFace"
sketch5.AttachmentOffset = App.Placement(App.Vector(0, 0, -8.5), App.Rotation())
sketch5.addGeometry(Part.Circle(App.Vector(0.012374, -7, 0), App.Vector(0, 0, 1), 8.234207), False)
sketch5.addGeometry(Part.Circle(App.Vector(0.012374, -7, 0), App.Vector(0, 0, 1), 6.234207), False)
sketch5.addConstraint(Sketcher.Constraint("Coincident", 1, 3, 0, 3))
sketch5.addConstraint(Sketcher.Constraint("DistanceY", 0, 3, -1, 1, 7.0))
sketch5.addConstraint(Sketcher.Constraint("Diameter", 0, 16.468415))
sketch5.addConstraint(Sketcher.Constraint("Diameter", 1, 12.468415))
sketch5.addConstraint(Sketcher.Constraint("DistanceX", -1, 1, 0, 3, 0.012374))
pad4 = body3.newObject("PartDesign::Pad", "Pad003")
pad4.Profile = sketch5
pad4.setExpression("Length", "Params.pad4_length")
pad4.Reversed = True
body4 = doc.addObject("PartDesign::Body", "Body003")

sketch6 = body4.newObject("Sketcher::SketchObject", "Sketch005")
sketch6.AttachmentSupport = (doc.getObject("XZ_Plane003"), [""])
sketch6.MapMode = "FlatFace"
sketch6.AttachmentOffset = App.Placement(App.Vector(0, 0, -11.5), App.Rotation())
sketch6.addGeometry(Part.Circle(App.Vector(0.012374, -7, 0), App.Vector(0, 0, 1), 5.604867), False)
sketch6.addGeometry(Part.Circle(App.Vector(0.012374, -7, 0), App.Vector(0, 0, 1), 4.804867), False)
sketch6.addConstraint(Sketcher.Constraint("Coincident", 1, 3, 0, 3))
sketch6.addConstraint(Sketcher.Constraint("DistanceY", 0, 3, -1, 1, 7.0))
sketch6.addConstraint(Sketcher.Constraint("Diameter", 0, 11.209735))
sketch6.addConstraint(Sketcher.Constraint("Diameter", 1, 9.609735))
sketch6.addConstraint(Sketcher.Constraint("DistanceX", -1, 1, 0, 3, 0.012374))
pad5 = body4.newObject("PartDesign::Pad", "Pad004")
pad5.Profile = sketch6
pad5.Type = "TwoLengths"
pad5.setExpression("Length", "Params.pad5_length")
pad5.setExpression("Length2", "Params.pad5_length2")
pad5.Reversed = True
body5 = doc.addObject("PartDesign::Body", "Body004")

sketch7 = body5.newObject("Sketcher::SketchObject", "Sketch006")
sketch7.AttachmentSupport = (doc.getObject("XZ_Plane004"), [""])
sketch7.MapMode = "FlatFace"
sketch7.AttachmentOffset = App.Placement(App.Vector(0, 0, -17.5), App.Rotation())
sketch7.addGeometry(Part.Circle(App.Vector(0.012374, -7, 0), App.Vector(0, 0, 1), 6.65), False)
sketch7.addGeometry(Part.Circle(App.Vector(0.012374, -7, 0), App.Vector(0, 0, 1), 5.65), False)
sketch7.addConstraint(Sketcher.Constraint("Coincident", 1, 3, 0, 3))
sketch7.addConstraint(Sketcher.Constraint("Diameter", 0, 13.3))
sketch7.addConstraint(Sketcher.Constraint("Diameter", 1, 11.3))
sketch7.addConstraint(Sketcher.Constraint("DistanceY", 0, 3, -1, 1, 7.0))
sketch7.addConstraint(Sketcher.Constraint("DistanceX", -1, 1, 0, 3, 0.012374))
sketch7.setExpression("Constraints[1]", "Params.sketch7_diameter")
sketch7.setExpression("Constraints[2]", "Params.sketch7_diameter2")
pad6 = body5.newObject("PartDesign::Pad", "Pad005")
pad6.Profile = sketch7
pad6.setExpression("Length", "Params.pad6_length")
pad6.Reversed = True
body6 = doc.addObject("PartDesign::Body", "Body005")

sketch8 = body6.newObject("Sketcher::SketchObject", "Sketch007")
sketch8.AttachmentSupport = (doc.getObject("XZ_Plane005"), [""])
sketch8.MapMode = "FlatFace"
sketch8.AttachmentOffset = App.Placement(App.Vector(0, 0, -20.5), App.Rotation())
sketch8.addGeometry(Part.Circle(App.Vector(0.012374, -7, 0), App.Vector(0, 0, 1), 5.65), False)
sketch8.addConstraint(Sketcher.Constraint("Diameter", 0, 11.3))
sketch8.addConstraint(Sketcher.Constraint("DistanceY", 0, 3, -1, 1, 7.0))
sketch8.addConstraint(Sketcher.Constraint("DistanceX", -1, 1, 0, 3, 0.012374))
sketch8.setExpression("Constraints[0]", "Params.sketch8_diameter")
pad7 = body6.newObject("PartDesign::Pad", "Pad006")
pad7.Profile = sketch8
pad7.setExpression("Length", "Params.pad7_length")
pad7.Reversed = True
pad7.setExpression("TaperAngle", "Params.pad7_taper")
doc.recompute()

fillet2 = body6.newObject("PartDesign::Fillet", "Fillet001")
fillet2.Base = (pad7, edges_at(pad7, [(0.012, 21, -9.814)]))
fillet2.setExpression("Radius", "Params.fillet2_radius")

doc.recompute()
